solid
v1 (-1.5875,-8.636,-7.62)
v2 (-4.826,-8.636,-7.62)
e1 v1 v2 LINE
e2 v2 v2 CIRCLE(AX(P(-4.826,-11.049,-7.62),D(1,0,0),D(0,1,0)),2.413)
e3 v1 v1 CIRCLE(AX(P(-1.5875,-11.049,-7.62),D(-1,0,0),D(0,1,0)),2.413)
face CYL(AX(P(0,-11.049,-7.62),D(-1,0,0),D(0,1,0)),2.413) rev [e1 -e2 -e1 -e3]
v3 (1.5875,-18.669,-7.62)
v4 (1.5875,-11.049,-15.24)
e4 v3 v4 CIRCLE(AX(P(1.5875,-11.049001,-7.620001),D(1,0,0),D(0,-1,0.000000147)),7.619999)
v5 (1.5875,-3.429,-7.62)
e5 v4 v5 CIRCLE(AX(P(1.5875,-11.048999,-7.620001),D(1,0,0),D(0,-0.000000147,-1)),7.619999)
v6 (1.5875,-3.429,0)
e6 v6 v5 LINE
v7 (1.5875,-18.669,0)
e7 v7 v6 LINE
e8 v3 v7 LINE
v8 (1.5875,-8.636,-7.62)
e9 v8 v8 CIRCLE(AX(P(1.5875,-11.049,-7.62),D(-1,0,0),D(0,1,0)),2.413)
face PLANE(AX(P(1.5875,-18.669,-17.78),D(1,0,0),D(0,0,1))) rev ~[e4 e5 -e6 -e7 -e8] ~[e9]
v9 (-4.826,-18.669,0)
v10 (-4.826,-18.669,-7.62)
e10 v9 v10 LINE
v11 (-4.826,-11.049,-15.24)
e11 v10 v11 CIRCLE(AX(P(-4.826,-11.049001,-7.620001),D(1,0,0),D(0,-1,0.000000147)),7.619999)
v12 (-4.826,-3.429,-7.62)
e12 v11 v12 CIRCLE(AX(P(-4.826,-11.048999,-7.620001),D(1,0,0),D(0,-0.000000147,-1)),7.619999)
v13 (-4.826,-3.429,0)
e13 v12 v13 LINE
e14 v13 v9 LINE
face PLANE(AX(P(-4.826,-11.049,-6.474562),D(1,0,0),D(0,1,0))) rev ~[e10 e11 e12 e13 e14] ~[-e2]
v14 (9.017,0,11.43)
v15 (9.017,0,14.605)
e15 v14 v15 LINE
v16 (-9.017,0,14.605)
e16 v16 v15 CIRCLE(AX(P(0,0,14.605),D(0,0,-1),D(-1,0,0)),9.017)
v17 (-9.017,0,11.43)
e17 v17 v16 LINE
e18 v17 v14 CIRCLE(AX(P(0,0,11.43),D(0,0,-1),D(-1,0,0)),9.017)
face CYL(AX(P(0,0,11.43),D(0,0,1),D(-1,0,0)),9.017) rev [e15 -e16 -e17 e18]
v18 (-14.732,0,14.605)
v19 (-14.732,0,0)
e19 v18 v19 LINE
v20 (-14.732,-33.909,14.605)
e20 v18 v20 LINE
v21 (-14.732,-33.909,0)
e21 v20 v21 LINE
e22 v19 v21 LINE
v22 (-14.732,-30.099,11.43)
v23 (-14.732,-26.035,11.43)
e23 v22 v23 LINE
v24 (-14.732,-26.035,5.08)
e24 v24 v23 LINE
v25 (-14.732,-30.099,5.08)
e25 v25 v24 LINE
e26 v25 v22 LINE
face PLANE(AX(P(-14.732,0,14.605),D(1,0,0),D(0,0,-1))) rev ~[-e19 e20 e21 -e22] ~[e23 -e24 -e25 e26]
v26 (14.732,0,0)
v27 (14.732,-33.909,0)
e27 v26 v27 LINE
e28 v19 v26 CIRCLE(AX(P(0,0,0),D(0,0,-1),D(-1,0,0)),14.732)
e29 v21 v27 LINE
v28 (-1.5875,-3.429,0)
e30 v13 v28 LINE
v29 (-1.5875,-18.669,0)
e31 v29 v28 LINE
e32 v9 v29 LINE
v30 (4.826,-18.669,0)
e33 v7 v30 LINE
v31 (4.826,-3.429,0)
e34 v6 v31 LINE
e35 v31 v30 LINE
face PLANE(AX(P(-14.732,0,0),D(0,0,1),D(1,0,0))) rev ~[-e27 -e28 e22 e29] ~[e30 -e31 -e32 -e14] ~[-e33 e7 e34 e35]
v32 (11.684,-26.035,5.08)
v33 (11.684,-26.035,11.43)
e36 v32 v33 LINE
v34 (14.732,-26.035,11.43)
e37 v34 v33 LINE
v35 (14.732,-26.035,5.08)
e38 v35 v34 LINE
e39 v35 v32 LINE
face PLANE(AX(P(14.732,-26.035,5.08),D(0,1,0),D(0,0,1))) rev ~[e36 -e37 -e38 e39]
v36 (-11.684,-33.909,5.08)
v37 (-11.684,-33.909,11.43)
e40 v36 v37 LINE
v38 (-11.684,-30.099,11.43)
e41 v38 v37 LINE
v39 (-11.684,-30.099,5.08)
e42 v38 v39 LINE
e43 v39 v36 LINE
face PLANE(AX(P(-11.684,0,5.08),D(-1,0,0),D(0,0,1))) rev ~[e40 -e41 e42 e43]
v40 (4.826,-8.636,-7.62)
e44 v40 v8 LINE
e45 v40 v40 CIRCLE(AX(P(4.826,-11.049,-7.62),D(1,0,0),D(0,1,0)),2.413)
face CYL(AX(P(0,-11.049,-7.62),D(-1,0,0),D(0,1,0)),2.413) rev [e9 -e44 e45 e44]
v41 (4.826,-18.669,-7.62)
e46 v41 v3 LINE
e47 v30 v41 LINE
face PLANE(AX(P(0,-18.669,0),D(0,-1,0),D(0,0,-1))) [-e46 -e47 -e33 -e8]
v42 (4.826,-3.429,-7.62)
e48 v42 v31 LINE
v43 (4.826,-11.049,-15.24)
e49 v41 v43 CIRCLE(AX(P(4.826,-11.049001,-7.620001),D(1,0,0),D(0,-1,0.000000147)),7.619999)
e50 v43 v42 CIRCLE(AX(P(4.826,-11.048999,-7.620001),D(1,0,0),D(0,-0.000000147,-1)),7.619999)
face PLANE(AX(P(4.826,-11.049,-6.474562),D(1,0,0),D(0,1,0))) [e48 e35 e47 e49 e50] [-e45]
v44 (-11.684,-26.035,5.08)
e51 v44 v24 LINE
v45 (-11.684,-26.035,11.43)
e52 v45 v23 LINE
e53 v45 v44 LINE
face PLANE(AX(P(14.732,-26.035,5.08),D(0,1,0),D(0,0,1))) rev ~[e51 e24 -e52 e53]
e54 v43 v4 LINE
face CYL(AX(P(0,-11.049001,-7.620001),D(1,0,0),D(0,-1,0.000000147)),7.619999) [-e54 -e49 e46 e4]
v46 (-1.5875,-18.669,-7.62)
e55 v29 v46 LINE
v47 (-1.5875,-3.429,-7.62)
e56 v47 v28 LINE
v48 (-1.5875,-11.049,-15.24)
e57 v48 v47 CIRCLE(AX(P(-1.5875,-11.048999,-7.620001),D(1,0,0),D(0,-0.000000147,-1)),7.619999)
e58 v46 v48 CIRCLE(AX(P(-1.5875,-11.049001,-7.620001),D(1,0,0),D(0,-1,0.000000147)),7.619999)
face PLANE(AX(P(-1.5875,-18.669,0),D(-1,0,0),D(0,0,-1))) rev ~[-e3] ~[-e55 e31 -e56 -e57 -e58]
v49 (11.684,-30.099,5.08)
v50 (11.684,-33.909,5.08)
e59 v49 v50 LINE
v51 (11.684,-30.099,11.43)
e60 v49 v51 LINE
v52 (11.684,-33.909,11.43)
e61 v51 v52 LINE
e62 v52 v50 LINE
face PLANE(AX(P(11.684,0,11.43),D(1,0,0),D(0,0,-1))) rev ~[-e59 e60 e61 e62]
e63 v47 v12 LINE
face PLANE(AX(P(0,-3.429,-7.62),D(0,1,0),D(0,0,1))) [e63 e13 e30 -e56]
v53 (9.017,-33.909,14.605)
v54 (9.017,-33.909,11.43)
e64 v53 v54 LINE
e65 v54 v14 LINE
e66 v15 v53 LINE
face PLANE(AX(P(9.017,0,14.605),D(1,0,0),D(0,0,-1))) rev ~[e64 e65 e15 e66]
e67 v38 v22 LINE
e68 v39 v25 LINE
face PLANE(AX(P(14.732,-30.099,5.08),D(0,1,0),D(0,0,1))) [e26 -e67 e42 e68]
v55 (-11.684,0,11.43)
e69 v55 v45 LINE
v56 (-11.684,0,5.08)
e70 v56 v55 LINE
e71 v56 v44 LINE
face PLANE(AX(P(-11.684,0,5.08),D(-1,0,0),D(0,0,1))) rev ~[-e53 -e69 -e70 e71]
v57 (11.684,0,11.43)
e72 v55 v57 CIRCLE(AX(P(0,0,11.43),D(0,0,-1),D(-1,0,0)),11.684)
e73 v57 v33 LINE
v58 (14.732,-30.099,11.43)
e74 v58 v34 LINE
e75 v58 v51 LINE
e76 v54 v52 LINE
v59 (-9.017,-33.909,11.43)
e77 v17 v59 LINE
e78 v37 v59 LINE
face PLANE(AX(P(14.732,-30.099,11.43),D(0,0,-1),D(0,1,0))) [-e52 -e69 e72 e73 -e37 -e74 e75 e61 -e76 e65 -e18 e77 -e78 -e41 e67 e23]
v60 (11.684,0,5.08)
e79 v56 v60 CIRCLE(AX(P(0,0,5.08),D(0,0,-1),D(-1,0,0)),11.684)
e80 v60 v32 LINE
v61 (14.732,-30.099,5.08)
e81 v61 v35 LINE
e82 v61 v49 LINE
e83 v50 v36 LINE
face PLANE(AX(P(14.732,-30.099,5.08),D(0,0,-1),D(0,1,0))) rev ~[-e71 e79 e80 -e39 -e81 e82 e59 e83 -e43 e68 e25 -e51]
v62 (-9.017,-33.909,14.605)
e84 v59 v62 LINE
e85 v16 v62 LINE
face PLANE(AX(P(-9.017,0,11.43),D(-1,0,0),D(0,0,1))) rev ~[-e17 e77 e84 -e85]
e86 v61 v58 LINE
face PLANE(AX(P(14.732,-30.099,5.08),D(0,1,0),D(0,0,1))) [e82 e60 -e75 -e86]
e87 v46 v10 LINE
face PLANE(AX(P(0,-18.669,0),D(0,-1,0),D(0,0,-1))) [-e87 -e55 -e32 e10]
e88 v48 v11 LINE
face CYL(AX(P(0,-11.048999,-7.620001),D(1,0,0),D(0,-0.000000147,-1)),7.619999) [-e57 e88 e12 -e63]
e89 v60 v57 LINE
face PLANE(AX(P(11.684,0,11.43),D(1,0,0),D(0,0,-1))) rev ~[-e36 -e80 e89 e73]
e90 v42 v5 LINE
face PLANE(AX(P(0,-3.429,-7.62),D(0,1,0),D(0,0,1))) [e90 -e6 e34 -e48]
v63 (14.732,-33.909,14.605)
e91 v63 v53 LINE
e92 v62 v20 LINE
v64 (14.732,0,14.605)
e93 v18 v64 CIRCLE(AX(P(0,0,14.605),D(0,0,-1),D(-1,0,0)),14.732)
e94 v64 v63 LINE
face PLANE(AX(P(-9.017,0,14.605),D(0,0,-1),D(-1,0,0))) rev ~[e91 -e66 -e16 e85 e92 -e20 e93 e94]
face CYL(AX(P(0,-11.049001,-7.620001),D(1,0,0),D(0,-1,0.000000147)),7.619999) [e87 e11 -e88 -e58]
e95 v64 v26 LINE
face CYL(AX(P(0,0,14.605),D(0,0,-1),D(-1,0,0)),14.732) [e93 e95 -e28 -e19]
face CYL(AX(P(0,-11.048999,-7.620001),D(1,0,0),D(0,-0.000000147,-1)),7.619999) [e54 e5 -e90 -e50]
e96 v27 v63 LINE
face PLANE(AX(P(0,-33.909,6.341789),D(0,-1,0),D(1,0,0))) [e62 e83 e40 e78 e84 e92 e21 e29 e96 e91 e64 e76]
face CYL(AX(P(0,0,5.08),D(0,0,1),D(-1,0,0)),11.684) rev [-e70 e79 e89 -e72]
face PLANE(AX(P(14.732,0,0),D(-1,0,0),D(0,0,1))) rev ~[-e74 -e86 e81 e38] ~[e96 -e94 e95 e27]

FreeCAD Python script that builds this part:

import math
import FreeCAD as App
import Part
import Sketcher

V = App.Vector
Q = App.Units.Quantity

doc = App.newDocument("Part")
body = doc.addObject("PartDesign::Body", "Body")

sketch1 = body.newObject("Sketcher::SketchObject", "Sketch")
sketch1.AttachmentSupport = (doc.getObject("XZ_Plane"), [""])
sketch1.MapMode = "FlatFace"
sketch1.addGeometry(Part.LineSegment(V(-14.732, 0, 0), V(0, 0, 0)), False)
sketch1.addGeometry(Part.LineSegment(V(0, 0, 0), V(0, 5.08, 0)), False)
sketch1.addGeometry(Part.LineSegment(V(0, 5.08, 0), V(-11.684, 5.08, 0)), False)
sketch1.addGeometry(Part.LineSegment(V(-11.684, 5.08, 0), V(-11.684, 11.43, 0)), False)
sketch1.addGeometry(Part.LineSegment(V(-11.684, 11.43, 0), V(-9.017, 11.43, 0)), False)
sketch1.addGeometry(Part.LineSegment(V(-9.017, 11.43, 0), V(-9.017, 14.605, 0)), False)
sketch1.addGeometry(Part.LineSegment(V(-9.017, 14.605, 0), V(-14.732, 14.605, 0)), False)
sketch1.addGeometry(Part.LineSegment(V(-14.732, 14.605, 0), V(-14.732, 0, 0)), False)
sketch1.addConstraint(Sketcher.Constraint("Coincident", 0, 2, 1, 1))
sketch1.addConstraint(Sketcher.Constraint("Coincident", 1, 2, 2, 1))
sketch1.addConstraint(Sketcher.Constraint("Coincident", 2, 2, 3, 1))
sketch1.addConstraint(Sketcher.Constraint("Coincident", 3, 2, 4, 1))
sketch1.addConstraint(Sketcher.Constraint("Coincident", 4, 2, 5, 1))
sketch1.addConstraint(Sketcher.Constraint("Coincident", 5, 2, 6, 1))
sketch1.addConstraint(Sketcher.Constraint("Coincident", 6, 2, 7, 1))
sketch1.addConstraint(Sketcher.Constraint("Coincident", 7, 2, 0, 1))
sketch1.addConstraint(Sketcher.Constraint("Horizontal", 0))
sketch1.addConstraint(Sketcher.Constraint("Vertical", 1))
sketch1.addConstraint(Sketcher.Constraint("Horizontal", 2))
sketch1.addConstraint(Sketcher.Constraint("Vertical", 3))
sketch1.addConstraint(Sketcher.Constraint("Horizontal", 4))
sketch1.addConstraint(Sketcher.Constraint("Vertical", 5))
sketch1.addConstraint(Sketcher.Constraint("Horizontal", 6))
sketch1.addConstraint(Sketcher.Constraint("Vertical", 7))
sketch1.addConstraint(Sketcher.Constraint("Coincident", 0, 2, -1, 1))
sketch1.addConstraint(Sketcher.Constraint("DistanceY", 1, 1, 1, 2, Q("0.2 in")))
sketch1.addConstraint(Sketcher.Constraint("DistanceX", 0, 1, 0, 2, Q("0.58 in")))
sketch1.addConstraint(Sketcher.Constraint("DistanceX", 2, 2, 2, 1, Q("0.46 in")))
sketch1.addConstraint(Sketcher.Constraint("DistanceY", 3, 1, 3, 2, Q("0.25 in")))
sketch1.addConstraint(Sketcher.Constraint("DistanceX", 4, 1, 4, 2, Q("0.105 in")))
sketch1.addConstraint(Sketcher.Constraint("DistanceY", 5, 1, 5, 2, Q("0.125 in")))
revolution = body.newObject("PartDesign::Revolution", "Revolution")
revolution.Profile = sketch1
revolution.ReferenceAxis = (sketch1, ["V_Axis"])
revolution.Angle = 180
revolution.Reversed = True

sketch2 = body.newObject("Sketcher::SketchObject", "Sketch001")
sketch2.AttachmentSupport = (doc.getObject("XZ_Plane"), [""])
sketch2.MapMode = "FlatFace"
sketch2.addGeometry(Part.LineSegment(V(-14.732, 0, 0), V(14.732, 0, 0)), False)
sketch2.addGeometry(Part.LineSegment(V(14.732, 0, 0), V(14.732, 14.605, 0)), False)
sketch2.addGeometry(Part.LineSegment(V(14.732, 14.605, 0), V(9.017, 14.605, 0)), False)
sketch2.addGeometry(Part.LineSegment(V(9.017, 14.605, 0), V(9.017, 11.43, 0)), False)
sketch2.addGeometry(Part.LineSegment(V(9.017, 11.43, 0), V(11.684, 11.43, 0)), False)
sketch2.addGeometry(Part.LineSegment(V(11.684, 11.43, 0), V(11.684, 5.08, 0)), False)
sketch2.addGeometry(Part.LineSegment(V(11.684, 5.08, 0), V(-11.684, 5.08, 0)), False)
sketch2.addGeometry(Part.LineSegment(V(-11.684, 5.08, 0), V(-11.684, 11.43, 0)), False)
sketch2.addGeometry(Part.LineSegment(V(-11.684, 11.43, 0), V(-9.017, 11.43, 0)), False)
sketch2.addGeometry(Part.LineSegment(V(-9.017, 11.43, 0), V(-9.017, 14.605, 0)), False)
sketch2.addGeometry(Part.LineSegment(V(-9.017, 14.605, 0), V(-14.732, 14.605, 0)), False)
sketch2.addGeometry(Part.LineSegment(V(-14.732, 14.605, 0), V(-14.732, 0, 0)), False)
sketch2.addConstraint(Sketcher.Constraint("Coincident", 0, 2, 1, 1))
sketch2.addConstraint(Sketcher.Constraint("Coincident", 1, 2, 2, 1))
sketch2.addConstraint(Sketcher.Constraint("Coincident", 2, 2, 3, 1))
sketch2.addConstraint(Sketcher.Constraint("Coincident", 3, 2, 4, 1))
sketch2.addConstraint(Sketcher.Constraint("Coincident", 4, 2, 5, 1))
sketch2.addConstraint(Sketcher.Constraint("Coincident", 5, 2, 6, 1))
sketch2.addConstraint(Sketcher.Constraint("Coincident", 6, 2, 7, 1))
sketch2.addConstraint(Sketcher.Constraint("Coincident", 7, 2, 8, 1))
sketch2.addConstraint(Sketcher.Constraint("Coincident", 8, 2, 9, 1))
sketch2.addConstraint(Sketcher.Constraint("Coincident", 9, 2, 10, 1))
sketch2.addConstraint(Sketcher.Constraint("Coincident", 10, 2, 11, 1))
sketch2.addConstraint(Sketcher.Constraint("Coincident", 11, 2, 0, 1))
sketch2.addConstraint(Sketcher.Constraint("Horizontal", 0))
sketch2.addConstraint(Sketcher.Constraint("Vertical", 1))
sketch2.addConstraint(Sketcher.Constraint("Horizontal", 2))
sketch2.addConstraint(Sketcher.Constraint("Vertical", 3))
sketch2.addConstraint(Sketcher.Constraint("Horizontal", 4))
sketch2.addConstraint(Sketcher.Constraint("Vertical", 5))
sketch2.addConstraint(Sketcher.Constraint("Horizontal", 6))
sketch2.addConstraint(Sketcher.Constraint("Vertical", 7))
sketch2.addConstraint(Sketcher.Constraint("Horizontal", 8))
sketch2.addConstraint(Sketcher.Constraint("Vertical", 9))
sketch2.addConstraint(Sketcher.Constraint("Horizontal", 10))
sketch2.addConstraint(Sketcher.Constraint("Vertical", 11))
sketch2.addConstraint(Sketcher.Constraint("Symmetric", 0, 2, 11, 2, -1, 1))
sketch2.addConstraint(Sketcher.Constraint("Symmetric", 4, 2, 7, 2, -2))
sketch2.addConstraint(Sketcher.Constraint("Symmetric", 2, 2, 9, 2, -2))
sketch2.addConstraint(Sketcher.Constraint("DistanceX", 0, 1, 0, 2, Q("1.16 in")))
sketch2.addConstraint(Sketcher.Constraint("DistanceX", 6, 2, 6, 1, Q("0.92 in")))
sketch2.addConstraint(Sketcher.Constraint("DistanceY", 5, 2, 5, 1, Q("0.25 in")))
sketch2.addConstraint(Sketcher.Constraint("DistanceY", -1, 1, 5, 2, Q("0.2 in")))
sketch2.addConstraint(Sketcher.Constraint("DistanceX", 2, 2, 2, 1, Q("0.225 in")))
sketch2.addConstraint(Sketcher.Constraint("DistanceY", 1, 1, 1, 2, Q("0.575 in")))
pad1 = body.newObject("PartDesign::Pad", "Pad")
pad1.Profile = sketch2
pad1.Length = Q("1.335 in")

sketch3 = body.newObject("Sketcher::SketchObject", "Sketch002")
sketch3.AttachmentSupport = (doc.getObject("YZ_Plane"), [""])
sketch3.MapMode = "FlatFace"
sketch3.AttachmentOffset = App.Placement(V(0, 0, 0.58 * 25.4), App.Rotation())
sketch3.addGeometry(Part.LineSegment(V(-30.099, 11.43, 0), V(-30.099, 5.08, 0)), False)
sketch3.addGeometry(Part.LineSegment(V(-30.099, 5.08, 0), V(-26.035, 5.08, 0)), False)
sketch3.addGeometry(Part.LineSegment(V(-26.035, 5.08, 0), V(-26.035, 11.43, 0)), False)
sketch3.addGeometry(Part.LineSegment(V(-26.035, 11.43, 0), V(-30.099, 11.43, 0)), False)
sketch3.addConstraint(Sketcher.Constraint("Coincident", 0, 2, 1, 1))
sketch3.addConstraint(Sketcher.Constraint("Coincident", 1, 2, 2, 1))
sketch3.addConstraint(Sketcher.Constraint("Coincident", 2, 2, 3, 1))
sketch3.addConstraint(Sketcher.Constraint("Coincident", 3, 2, 0, 1))
sketch3.addConstraint(Sketcher.Constraint("Vertical", 0))
sketch3.addConstraint(Sketcher.Constraint("Horizontal", 1))
sketch3.addConstraint(Sketcher.Constraint("Vertical", 2))
sketch3.addConstraint(Sketcher.Constraint("Horizontal", 3))
sketch3.addConstraint(Sketcher.Constraint("DistanceX", 1, 1, 1, 2, Q("0.16 in")))
sketch3.addConstraint(Sketcher.Constraint("DistanceY", 0, 2, 0, 1, Q("0.25 in")))
sketch3.addConstraint(Sketcher.Constraint("DistanceY", -1, 1, 0, 2, Q("0.2 in")))
sketch3.addConstraint(Sketcher.Constraint("DistanceX", 0, 2, -1, 1, Q("1.185 in")))
pocket1 = body.newObject("PartDesign::Pocket", "Pocket")
pocket1.Profile = sketch3
pocket1.Type = "ThroughAll"

sketch4 = body.newObject("Sketcher::SketchObject", "Sketch003")
sketch4.AttachmentSupport = (doc.getObject("YZ_Plane"), [""])
sketch4.MapMode = "FlatFace"
sketch4.addGeometry(Part.LineSegment(V(-3.429, -7.62, 0), V(-3.429, 0, 0)), False)
sketch4.addGeometry(Part.LineSegment(V(-3.429, 0, 0), V(-18.669, 0, 0)), False)
sketch4.addGeometry(Part.LineSegment(V(-18.669, 0, 0), V(-18.669, -7.62, 0)), False)
sketch4.addGeometry(Part.ArcOfCircle(Part.Circle(V(-11.049001, -7.620001, 0), V(0, 0, 1), 7.619999), math.radians(179.999992), math.radians(270.000008)), False)
sketch4.addGeometry(Part.ArcOfCircle(Part.Circle(V(-11.048999, -7.620001, 0), V(0, 0, 1), 7.619999), math.radians(-90.000008), math.radians(0.000008)), False)
sketch4.addGeometry(Part.Circle(V(-11.049, -7.62, 0), V(0, 0, 1), 2.413), False)
sketch4.addConstraint(Sketcher.Constraint("Coincident", 0, 2, 1, 1))
sketch4.addConstraint(Sketcher.Constraint("Coincident", 1, 2, 2, 1))
sketch4.addConstraint(Sketcher.Constraint("Tangent", 2, 2, 3, 1))
sketch4.addConstraint(Sketcher.Constraint("Tangent", 3, 2, 4, 1))
sketch4.addConstraint(Sketcher.Constraint("Tangent", 4, 2, 0, 1))
sketch4.addConstraint(Sketcher.Constraint("Vertical", 0))
sketch4.addConstraint(Sketcher.Constraint("Horizontal", 1))
sketch4.addConstraint(Sketcher.Constraint("Vertical", 2))
sketch4.addConstraint(Sketcher.Constraint("Coincident", 5, 3, 3, 3))
sketch4.addConstraint(Sketcher.Constraint("Equal", 3, 4))
sketch4.addConstraint(Sketcher.Constraint("PointOnObject", 0, 2, -1))
sketch4.addConstraint(Sketcher.Constraint("Vertical", 5, 3, 3, 2))
sketch4.addConstraint(Sketcher.Constraint("Radius", 3, Q("0.3 in")))
sketch4.addConstraint(Sketcher.Constraint("Diameter", 5, Q("0.19 in")))
sketch4.addConstraint(Sketcher.Constraint("DistanceY", 0, 1, 0, 2, Q("0.3 in")))
sketch4.addConstraint(Sketcher.Constraint("DistanceX", 3, 3, -1, 1, Q("0.435 in")))
pad2 = body.newObject("PartDesign::Pad", "Pad001")
pad2.Profile = sketch4
pad2.Length = Q("0.38 in")
pad2.Midplane = True

sketch5 = body.newObject("Sketcher::SketchObject", "Sketch004")
sketch5.AttachmentSupport = (doc.getObject("XZ_Plane"), [""])
sketch5.MapMode = "FlatFace"
sketch5.AttachmentOffset = App.Placement(V(0, 0, 0.735 * 25.4), App.Rotation())
sketch5.addGeometry(Part.LineSegment(V(1.5875, 0, 0), V(-1.5875, 0, 0)), False)
sketch5.addGeometry(Part.LineSegment(V(-1.5875, 0, 0), V(-1.5875, -17.78, 0)), False)
sketch5.addGeometry(Part.LineSegment(V(-1.5875, -17.78, 0), V(1.5875, -17.78, 0)), False)
sketch5.addGeometry(Part.LineSegment(V(1.5875, -17.78, 0), V(1.5875, 0, 0)), False)
sketch5.addConstraint(Sketcher.Constraint("Coincident", 0, 2, 1, 1))
sketch5.addConstraint(Sketcher.Constraint("Coincident", 1, 2, 2, 1))
sketch5.addConstraint(Sketcher.Constraint("Coincident", 2, 2, 3, 1))
sketch5.addConstraint(Sketcher.Constraint("Coincident", 3, 2, 0, 1))
sketch5.addConstraint(Sketcher.Constraint("Horizontal", 0))
sketch5.addConstraint(Sketcher.Constraint("Vertical", 1))
sketch5.addConstraint(Sketcher.Constraint("Horizontal", 2))
sketch5.addConstraint(Sketcher.Constraint("Vertical", 3))
sketch5.addConstraint(Sketcher.Constraint("Symmetric", 0, 2, 3, 2, -1, 1))
sketch5.addConstraint(Sketcher.Constraint("DistanceY", 1, 2, 1, 1, Q("0.7 in")))
sketch5.addConstraint(Sketcher.Constraint("DistanceX", 0, 2, 0, 1, Q("0.125 in")))
pocket2 = body.newObject("PartDesign::Pocket", "Pocket001")
pocket2.Profile = sketch5
pocket2.Length = Q("1 in")

doc.recompute()
